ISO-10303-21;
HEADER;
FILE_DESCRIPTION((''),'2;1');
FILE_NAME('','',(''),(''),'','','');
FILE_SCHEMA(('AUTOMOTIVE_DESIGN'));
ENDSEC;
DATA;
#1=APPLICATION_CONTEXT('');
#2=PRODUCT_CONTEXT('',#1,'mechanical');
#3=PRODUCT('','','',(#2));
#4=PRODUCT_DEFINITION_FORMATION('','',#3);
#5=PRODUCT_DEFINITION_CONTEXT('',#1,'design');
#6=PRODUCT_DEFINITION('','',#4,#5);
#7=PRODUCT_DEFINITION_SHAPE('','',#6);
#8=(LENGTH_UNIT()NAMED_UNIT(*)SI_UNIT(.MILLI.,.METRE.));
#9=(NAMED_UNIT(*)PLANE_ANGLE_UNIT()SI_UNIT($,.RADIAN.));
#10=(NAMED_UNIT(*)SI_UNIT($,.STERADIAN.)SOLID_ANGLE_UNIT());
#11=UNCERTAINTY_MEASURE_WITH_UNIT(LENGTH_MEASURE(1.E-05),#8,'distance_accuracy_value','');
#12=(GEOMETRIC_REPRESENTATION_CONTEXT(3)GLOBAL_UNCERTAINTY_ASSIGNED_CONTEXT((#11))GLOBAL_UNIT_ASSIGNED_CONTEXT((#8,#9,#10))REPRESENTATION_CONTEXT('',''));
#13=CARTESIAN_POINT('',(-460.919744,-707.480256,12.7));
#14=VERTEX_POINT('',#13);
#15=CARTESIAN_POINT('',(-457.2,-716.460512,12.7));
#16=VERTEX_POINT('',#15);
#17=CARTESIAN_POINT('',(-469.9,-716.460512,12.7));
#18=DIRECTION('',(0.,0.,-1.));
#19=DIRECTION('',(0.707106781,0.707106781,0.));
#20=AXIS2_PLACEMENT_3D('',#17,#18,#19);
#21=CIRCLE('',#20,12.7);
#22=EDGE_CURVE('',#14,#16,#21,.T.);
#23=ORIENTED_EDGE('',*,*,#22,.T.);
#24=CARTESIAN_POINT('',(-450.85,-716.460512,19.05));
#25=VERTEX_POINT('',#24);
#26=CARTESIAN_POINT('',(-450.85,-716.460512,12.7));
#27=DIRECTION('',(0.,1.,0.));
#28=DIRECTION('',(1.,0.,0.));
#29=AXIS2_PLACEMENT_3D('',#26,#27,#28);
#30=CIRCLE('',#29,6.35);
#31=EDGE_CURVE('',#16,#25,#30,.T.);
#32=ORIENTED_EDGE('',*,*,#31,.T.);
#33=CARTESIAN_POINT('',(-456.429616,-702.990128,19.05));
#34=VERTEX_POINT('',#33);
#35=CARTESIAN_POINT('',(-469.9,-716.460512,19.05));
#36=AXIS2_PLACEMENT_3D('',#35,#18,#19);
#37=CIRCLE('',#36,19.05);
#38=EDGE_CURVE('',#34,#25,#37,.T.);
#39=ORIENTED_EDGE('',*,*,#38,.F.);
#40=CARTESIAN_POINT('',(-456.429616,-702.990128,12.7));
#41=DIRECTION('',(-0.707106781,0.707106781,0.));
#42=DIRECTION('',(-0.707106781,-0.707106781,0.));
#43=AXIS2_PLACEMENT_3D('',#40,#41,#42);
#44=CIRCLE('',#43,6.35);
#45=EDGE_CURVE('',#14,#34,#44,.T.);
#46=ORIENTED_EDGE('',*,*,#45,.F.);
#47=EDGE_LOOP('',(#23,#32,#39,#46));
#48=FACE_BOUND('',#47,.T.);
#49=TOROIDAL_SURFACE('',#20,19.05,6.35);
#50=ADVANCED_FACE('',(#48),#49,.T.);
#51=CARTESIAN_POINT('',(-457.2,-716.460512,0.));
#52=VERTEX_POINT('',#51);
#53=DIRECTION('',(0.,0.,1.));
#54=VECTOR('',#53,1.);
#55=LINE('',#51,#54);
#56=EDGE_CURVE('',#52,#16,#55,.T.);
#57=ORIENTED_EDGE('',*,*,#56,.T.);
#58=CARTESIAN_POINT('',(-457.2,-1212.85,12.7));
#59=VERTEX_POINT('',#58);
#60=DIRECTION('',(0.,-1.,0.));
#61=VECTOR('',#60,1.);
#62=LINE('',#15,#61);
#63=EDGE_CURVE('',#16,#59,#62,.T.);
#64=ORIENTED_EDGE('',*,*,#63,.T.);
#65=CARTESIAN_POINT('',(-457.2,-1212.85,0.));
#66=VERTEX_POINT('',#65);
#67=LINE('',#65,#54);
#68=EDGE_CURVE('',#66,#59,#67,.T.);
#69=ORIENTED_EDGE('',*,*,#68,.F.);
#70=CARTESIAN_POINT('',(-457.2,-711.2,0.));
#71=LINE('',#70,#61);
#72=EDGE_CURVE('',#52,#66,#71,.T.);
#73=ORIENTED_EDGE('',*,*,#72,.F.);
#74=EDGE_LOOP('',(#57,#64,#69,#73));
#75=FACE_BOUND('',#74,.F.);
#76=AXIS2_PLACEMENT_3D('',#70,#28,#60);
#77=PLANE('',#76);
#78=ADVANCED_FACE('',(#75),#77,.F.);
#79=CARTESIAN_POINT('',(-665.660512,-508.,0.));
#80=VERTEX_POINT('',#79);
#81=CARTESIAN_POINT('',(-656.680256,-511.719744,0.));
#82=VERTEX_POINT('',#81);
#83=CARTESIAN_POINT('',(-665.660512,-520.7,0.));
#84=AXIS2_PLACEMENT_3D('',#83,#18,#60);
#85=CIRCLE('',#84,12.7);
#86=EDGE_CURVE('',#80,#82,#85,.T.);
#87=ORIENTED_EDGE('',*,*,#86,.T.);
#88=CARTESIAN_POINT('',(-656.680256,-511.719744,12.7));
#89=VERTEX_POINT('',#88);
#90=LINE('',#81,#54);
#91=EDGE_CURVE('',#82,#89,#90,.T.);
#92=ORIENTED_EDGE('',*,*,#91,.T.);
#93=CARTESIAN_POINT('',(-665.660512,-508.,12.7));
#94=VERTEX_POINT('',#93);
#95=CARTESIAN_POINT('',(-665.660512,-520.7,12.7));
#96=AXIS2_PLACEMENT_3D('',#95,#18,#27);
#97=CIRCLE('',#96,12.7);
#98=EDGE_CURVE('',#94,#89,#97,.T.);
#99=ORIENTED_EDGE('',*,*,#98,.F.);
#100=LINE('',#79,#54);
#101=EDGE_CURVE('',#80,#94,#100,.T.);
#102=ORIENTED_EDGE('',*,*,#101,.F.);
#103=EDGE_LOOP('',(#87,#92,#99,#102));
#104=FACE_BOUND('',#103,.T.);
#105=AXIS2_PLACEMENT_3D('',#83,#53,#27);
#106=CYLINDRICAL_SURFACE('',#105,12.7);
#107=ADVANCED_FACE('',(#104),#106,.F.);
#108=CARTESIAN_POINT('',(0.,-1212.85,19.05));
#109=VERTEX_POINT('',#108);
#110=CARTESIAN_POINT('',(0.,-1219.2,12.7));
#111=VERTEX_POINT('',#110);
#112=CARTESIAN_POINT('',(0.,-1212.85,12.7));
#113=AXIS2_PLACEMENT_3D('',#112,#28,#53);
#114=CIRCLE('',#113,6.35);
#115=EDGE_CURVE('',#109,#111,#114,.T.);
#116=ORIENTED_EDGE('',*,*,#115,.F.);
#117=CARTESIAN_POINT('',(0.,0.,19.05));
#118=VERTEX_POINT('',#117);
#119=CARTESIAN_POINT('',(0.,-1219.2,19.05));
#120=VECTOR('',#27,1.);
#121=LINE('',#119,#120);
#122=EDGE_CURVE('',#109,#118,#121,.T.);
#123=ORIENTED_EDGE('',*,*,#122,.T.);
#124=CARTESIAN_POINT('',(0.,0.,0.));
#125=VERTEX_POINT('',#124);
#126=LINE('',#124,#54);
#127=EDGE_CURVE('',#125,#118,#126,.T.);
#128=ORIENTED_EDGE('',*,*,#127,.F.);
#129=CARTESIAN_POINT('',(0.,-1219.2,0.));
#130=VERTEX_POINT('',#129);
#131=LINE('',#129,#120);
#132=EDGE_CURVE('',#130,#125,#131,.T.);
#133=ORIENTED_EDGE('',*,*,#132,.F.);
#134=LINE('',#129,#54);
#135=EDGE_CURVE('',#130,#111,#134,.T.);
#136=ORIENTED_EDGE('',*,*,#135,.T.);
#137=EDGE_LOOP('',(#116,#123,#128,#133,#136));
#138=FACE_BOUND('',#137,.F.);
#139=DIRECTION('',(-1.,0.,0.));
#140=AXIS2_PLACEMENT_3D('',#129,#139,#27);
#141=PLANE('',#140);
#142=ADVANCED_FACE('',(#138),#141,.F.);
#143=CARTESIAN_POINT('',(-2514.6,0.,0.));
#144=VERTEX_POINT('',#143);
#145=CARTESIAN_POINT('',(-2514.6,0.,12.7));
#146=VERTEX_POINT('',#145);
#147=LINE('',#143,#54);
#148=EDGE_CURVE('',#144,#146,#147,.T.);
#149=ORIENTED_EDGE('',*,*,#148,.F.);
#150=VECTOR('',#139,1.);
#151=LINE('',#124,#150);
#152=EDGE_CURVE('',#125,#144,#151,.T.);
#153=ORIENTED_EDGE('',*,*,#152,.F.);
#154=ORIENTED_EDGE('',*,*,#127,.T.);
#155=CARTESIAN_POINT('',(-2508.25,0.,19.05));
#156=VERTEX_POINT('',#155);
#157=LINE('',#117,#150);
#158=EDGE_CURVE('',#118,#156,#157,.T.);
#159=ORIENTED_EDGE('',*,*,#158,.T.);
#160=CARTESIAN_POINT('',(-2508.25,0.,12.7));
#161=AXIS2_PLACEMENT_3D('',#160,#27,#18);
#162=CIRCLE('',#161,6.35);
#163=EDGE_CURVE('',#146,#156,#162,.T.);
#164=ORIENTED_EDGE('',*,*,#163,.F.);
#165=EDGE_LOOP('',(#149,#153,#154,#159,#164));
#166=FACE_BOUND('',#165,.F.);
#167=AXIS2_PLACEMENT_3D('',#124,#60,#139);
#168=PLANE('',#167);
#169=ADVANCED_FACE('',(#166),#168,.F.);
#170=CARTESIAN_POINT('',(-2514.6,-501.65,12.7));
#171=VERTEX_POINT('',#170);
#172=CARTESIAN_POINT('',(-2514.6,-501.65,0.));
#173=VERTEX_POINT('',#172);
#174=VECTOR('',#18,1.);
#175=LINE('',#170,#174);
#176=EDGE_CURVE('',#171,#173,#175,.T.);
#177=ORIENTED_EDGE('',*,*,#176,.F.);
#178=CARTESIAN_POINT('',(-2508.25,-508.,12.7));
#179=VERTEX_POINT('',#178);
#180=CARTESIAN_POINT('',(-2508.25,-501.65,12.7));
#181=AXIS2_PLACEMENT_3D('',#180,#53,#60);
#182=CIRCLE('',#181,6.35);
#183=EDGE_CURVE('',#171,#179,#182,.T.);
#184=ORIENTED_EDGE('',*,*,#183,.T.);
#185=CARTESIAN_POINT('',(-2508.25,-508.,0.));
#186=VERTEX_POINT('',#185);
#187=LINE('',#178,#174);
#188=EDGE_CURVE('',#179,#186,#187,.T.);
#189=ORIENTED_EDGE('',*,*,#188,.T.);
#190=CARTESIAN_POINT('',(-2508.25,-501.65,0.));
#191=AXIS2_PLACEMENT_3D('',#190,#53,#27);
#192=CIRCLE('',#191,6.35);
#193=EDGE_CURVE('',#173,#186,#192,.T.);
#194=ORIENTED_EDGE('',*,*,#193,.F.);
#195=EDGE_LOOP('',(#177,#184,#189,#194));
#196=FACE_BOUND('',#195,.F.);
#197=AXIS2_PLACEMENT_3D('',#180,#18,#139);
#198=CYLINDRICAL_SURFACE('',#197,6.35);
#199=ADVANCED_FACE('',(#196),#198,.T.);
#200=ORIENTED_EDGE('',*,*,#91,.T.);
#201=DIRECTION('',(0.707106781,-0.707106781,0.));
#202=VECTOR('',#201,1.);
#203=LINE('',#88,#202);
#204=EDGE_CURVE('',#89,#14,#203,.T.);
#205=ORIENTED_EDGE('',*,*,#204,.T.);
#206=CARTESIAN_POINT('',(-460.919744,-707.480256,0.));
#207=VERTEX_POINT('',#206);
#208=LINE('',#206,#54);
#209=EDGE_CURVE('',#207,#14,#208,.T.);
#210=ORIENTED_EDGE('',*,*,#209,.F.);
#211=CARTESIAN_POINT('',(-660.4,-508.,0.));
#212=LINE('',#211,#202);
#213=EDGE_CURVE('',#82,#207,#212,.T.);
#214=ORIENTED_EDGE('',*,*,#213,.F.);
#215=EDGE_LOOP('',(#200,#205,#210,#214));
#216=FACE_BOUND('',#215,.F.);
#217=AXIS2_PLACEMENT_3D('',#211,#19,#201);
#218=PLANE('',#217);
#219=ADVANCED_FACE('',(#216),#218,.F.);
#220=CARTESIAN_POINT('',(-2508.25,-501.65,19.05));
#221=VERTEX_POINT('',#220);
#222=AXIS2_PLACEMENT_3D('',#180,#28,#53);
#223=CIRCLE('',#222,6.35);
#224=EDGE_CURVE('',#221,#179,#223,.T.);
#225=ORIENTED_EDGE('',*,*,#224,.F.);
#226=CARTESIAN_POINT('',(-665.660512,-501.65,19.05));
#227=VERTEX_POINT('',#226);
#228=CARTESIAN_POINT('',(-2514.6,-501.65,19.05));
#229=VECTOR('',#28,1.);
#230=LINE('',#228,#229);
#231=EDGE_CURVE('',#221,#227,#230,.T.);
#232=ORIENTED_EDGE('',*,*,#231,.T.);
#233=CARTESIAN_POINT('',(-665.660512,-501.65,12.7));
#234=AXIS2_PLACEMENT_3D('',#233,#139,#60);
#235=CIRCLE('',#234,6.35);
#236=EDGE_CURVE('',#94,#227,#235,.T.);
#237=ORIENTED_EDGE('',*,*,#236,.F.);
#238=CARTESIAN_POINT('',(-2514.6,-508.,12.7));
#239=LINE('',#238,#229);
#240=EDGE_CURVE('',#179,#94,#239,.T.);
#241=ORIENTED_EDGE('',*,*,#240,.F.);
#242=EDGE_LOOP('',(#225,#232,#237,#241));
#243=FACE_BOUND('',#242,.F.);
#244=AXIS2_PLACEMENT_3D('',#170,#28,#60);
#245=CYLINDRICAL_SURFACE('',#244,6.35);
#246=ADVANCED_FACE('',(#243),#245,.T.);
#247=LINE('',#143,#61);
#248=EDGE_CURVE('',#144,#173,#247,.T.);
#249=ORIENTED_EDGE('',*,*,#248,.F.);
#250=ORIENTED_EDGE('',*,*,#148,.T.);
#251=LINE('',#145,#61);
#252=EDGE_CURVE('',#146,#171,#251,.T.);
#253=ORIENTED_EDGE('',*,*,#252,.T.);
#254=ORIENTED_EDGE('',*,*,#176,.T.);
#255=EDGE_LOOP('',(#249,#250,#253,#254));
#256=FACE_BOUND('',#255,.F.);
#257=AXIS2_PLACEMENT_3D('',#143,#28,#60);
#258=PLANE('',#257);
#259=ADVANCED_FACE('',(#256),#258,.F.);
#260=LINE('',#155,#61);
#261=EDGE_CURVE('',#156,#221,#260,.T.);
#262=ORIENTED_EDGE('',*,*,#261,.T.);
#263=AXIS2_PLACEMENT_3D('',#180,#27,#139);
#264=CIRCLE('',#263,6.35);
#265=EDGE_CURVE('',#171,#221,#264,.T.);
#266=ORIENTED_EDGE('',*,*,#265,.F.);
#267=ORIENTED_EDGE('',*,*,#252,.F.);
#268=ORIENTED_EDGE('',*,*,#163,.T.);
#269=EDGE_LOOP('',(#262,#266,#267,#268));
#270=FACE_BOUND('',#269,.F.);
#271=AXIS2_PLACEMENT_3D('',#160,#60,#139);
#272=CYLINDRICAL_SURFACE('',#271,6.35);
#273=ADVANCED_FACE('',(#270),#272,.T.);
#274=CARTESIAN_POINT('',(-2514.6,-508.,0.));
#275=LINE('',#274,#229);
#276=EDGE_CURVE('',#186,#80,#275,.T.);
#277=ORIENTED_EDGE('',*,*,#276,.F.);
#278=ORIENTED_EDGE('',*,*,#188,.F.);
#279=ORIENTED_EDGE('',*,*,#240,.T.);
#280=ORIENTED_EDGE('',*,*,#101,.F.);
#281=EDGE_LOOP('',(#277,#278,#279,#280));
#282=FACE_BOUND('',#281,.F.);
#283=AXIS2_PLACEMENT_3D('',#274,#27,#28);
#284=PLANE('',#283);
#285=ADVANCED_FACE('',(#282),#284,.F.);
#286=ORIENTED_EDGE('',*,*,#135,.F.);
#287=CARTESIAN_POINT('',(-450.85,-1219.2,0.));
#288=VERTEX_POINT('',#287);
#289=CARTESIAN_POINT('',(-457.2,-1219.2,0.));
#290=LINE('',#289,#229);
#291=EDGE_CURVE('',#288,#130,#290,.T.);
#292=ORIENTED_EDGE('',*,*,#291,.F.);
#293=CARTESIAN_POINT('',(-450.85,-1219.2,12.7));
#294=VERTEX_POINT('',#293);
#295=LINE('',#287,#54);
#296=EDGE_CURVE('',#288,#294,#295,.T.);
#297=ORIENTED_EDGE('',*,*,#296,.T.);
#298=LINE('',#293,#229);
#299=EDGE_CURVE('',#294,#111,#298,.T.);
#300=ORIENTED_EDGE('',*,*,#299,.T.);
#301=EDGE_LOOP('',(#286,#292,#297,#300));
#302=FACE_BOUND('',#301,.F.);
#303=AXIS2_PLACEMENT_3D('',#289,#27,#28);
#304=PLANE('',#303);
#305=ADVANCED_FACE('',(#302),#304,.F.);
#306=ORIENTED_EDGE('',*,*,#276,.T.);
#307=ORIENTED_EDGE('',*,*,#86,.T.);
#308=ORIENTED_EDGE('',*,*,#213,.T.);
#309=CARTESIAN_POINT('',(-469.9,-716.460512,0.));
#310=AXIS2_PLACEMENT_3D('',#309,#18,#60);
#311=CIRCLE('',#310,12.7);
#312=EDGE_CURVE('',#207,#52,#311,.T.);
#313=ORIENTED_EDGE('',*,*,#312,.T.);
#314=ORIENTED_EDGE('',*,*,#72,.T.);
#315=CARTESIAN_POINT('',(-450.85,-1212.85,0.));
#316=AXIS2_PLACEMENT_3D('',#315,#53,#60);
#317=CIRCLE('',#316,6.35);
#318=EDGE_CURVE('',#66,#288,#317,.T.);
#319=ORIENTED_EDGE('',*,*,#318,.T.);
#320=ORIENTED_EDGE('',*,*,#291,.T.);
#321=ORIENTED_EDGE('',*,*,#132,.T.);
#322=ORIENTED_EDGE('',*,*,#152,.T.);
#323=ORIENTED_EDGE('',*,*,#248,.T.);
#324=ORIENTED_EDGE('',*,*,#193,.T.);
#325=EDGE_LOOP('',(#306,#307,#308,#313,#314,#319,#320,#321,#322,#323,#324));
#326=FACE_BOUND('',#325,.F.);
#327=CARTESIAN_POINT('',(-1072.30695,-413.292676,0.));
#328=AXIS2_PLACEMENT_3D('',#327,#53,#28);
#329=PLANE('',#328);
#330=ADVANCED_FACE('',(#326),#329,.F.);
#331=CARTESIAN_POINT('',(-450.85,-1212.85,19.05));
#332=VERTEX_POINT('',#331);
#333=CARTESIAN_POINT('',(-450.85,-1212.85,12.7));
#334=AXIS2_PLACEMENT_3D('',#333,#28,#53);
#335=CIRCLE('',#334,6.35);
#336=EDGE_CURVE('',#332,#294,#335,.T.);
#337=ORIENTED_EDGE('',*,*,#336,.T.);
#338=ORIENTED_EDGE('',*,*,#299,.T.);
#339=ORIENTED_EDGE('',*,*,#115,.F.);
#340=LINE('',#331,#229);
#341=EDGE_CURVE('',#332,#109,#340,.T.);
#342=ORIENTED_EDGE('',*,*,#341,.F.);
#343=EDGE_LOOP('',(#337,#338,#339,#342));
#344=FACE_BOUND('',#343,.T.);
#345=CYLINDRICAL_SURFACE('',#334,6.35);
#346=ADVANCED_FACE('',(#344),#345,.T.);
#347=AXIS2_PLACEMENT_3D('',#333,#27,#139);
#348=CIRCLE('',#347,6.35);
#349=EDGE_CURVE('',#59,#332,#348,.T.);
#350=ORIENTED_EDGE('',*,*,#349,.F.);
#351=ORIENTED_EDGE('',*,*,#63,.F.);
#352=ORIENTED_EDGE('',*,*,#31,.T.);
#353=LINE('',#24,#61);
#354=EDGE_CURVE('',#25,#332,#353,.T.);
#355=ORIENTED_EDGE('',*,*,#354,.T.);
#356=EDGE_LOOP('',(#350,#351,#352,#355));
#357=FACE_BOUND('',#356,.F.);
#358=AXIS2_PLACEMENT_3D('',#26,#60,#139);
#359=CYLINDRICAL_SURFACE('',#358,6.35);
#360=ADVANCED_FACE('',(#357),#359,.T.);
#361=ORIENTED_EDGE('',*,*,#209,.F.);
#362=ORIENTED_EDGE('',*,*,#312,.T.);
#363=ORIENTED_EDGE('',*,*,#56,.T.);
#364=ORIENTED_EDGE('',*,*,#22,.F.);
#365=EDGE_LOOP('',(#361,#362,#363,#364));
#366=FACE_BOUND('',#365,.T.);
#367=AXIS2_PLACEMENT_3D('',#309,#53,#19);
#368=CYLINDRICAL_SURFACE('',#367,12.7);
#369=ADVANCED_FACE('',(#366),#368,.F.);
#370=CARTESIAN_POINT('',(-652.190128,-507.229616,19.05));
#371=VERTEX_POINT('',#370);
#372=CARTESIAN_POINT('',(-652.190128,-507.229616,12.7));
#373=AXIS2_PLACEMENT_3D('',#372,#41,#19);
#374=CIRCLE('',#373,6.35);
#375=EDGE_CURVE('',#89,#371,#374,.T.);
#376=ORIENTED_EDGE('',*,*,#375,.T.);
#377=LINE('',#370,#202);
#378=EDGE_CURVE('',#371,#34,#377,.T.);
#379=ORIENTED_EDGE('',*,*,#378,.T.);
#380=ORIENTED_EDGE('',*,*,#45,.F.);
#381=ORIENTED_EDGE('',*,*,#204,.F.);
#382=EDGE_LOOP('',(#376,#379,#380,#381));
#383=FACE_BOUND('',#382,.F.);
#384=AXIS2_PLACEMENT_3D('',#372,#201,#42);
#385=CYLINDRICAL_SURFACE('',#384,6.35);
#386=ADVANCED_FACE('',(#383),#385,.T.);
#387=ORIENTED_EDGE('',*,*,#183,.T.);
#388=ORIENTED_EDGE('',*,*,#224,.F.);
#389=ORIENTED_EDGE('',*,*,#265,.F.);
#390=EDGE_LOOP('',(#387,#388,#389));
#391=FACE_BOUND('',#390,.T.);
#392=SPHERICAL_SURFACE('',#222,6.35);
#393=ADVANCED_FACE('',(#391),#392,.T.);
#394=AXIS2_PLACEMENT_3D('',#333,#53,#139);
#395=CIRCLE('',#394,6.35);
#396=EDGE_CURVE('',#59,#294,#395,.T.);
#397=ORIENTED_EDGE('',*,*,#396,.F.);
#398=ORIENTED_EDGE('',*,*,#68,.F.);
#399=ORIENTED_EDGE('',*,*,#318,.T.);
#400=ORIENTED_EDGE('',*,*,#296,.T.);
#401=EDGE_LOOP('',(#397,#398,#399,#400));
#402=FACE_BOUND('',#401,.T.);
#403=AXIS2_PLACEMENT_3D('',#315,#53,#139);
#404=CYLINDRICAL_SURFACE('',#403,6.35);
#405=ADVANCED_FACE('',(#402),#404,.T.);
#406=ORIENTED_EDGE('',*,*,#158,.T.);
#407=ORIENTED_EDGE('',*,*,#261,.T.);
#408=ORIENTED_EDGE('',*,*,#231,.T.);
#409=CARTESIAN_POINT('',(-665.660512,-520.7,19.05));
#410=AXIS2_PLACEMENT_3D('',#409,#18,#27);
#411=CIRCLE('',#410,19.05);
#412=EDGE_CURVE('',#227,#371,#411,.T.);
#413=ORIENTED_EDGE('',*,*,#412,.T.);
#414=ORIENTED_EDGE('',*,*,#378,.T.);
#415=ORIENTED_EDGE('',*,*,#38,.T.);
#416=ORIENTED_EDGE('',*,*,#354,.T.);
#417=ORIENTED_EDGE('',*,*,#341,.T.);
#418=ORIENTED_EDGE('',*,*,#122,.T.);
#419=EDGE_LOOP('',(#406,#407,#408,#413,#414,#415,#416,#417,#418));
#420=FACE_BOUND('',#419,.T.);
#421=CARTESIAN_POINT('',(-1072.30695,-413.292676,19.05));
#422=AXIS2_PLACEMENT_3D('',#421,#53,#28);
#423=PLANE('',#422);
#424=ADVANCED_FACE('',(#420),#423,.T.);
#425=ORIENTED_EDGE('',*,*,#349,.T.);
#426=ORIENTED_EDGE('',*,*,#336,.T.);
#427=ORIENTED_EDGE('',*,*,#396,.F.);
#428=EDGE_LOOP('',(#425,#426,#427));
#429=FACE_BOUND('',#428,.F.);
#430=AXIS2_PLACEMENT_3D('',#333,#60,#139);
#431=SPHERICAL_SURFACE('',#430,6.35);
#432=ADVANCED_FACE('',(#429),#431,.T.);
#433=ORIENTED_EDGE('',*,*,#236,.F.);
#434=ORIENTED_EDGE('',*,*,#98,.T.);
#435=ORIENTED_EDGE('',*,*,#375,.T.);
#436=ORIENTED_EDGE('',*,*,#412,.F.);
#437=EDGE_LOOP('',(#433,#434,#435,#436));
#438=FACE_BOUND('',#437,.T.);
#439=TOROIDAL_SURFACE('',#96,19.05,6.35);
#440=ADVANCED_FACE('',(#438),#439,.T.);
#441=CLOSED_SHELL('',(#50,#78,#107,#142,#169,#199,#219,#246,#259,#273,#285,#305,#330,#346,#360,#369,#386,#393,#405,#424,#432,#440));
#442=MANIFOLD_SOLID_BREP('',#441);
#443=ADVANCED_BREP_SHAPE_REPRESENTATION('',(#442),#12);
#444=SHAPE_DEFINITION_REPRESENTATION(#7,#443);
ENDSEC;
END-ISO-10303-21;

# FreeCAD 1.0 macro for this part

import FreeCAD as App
import Part
import Sketcher
from FreeCAD import Vector
Q = App.Units.Quantity


def edges_at(feature, points):
    """Names of the edges that pass closest to the given points."""
    edges = feature.Shape.Edges
    near = lambda p: min(range(len(edges)), key=lambda i: edges[i].distToShape(Part.Vertex(*p))[0])
    return sorted({f"Edge{near(p) + 1}" for p in points})

doc = App.newDocument("Part")
body = doc.addObject("PartDesign::Body", "Body")

# Sketch on XY plane
sketch1 = body.newObject("Sketcher::SketchObject", "Sketch")
sketch1.AttachmentSupport = (doc.getObject("XY_Plane"), [""])
sketch1.MapMode = "FlatFace"
sketch1.addGeometry([
    Part.LineSegment(Vector(0, -1219, 0), Vector(0, 0, 0)),  # 0
    Part.LineSegment(Vector(0, 0, 0), Vector(-2515, 0, 0)),  # 1
    Part.LineSegment(Vector(-2515, 0, 0), Vector(-2515, -508, 0)),  # 2
    Part.LineSegment(Vector(-2515, -508, 0), Vector(-660, -508, 0)),  # 3
    Part.LineSegment(Vector(-660, -508, 0), Vector(-457, -711, 0)),  # 4
    Part.LineSegment(Vector(-457, -711, 0), Vector(-457, -1219, 0)),  # 5
    Part.LineSegment(Vector(-457, -1219, 0), Vector(0, -1219, 0)),  # 6
], False)
sketch1.addConstraint([
    Sketcher.Constraint("Coincident", 0, 2, 1, 1),
    Sketcher.Constraint("Coincident", 1, 2, 2, 1),
    Sketcher.Constraint("Coincident", 2, 2, 3, 1),
    Sketcher.Constraint("Coincident", 3, 2, 4, 1),
    Sketcher.Constraint("Coincident", 4, 2, 5, 1),
    Sketcher.Constraint("Coincident", 5, 2, 6, 1),
    Sketcher.Constraint("Coincident", 6, 2, 0, 1),
    Sketcher.Constraint("Vertical", 0),
    Sketcher.Constraint("Horizontal", 1),
    Sketcher.Constraint("Vertical", 2),
    Sketcher.Constraint("Horizontal", 3),
    Sketcher.Constraint("Vertical", 5),
    Sketcher.Constraint("Horizontal", 6),
    Sketcher.Constraint("Coincident", 0, 2, -1, 1),
    Sketcher.Constraint("Equal", 2, 5),
    Sketcher.Constraint("DistanceX", 1, 2, 1, 1, Q("99 in")),
    Sketcher.Constraint("DistanceX", 3, 1, 3, 2, Q("73 in")),
    Sketcher.Constraint("DistanceX", 6, 1, 6, 2, Q("18 in")),
    Sketcher.Constraint("DistanceY", 0, 1, 0, 2, Q("48 in")),
    Sketcher.Constraint("DistanceY", 2, 2, 2, 1, Q("20 in")),
])
pad1 = body.newObject("PartDesign::Pad", "Pad")
pad1.Profile = sketch1
pad1.Length = Q("0.75 in")
doc.recompute()

fillet = body.newObject("PartDesign::Fillet", "Fillet")
fillet.Base = (pad1, edges_at(pad1, [(-660.4, -508, 9.525), (-457.2, -711.2, 9.525)]))
fillet.Radius = Q("0.5 in")
doc.recompute()

fillet2 = body.newObject("PartDesign::Fillet", "Fillet001")
fillet2.Base = (fillet, edges_at(fillet, [(-1590.13, -508, 19.05)]))
fillet2.Radius = Q("0.25 in")
doc.recompute()

fillet3 = body.newObject("PartDesign::Fillet", "Fillet002")
fillet3.Base = (fillet2, edges_at(fillet2, [(-225.425, -1219.2, 19.05), (-2514.6, -250.825, 19.05)]))
fillet3.Radius = Q("0.25 in")

doc.recompute()
